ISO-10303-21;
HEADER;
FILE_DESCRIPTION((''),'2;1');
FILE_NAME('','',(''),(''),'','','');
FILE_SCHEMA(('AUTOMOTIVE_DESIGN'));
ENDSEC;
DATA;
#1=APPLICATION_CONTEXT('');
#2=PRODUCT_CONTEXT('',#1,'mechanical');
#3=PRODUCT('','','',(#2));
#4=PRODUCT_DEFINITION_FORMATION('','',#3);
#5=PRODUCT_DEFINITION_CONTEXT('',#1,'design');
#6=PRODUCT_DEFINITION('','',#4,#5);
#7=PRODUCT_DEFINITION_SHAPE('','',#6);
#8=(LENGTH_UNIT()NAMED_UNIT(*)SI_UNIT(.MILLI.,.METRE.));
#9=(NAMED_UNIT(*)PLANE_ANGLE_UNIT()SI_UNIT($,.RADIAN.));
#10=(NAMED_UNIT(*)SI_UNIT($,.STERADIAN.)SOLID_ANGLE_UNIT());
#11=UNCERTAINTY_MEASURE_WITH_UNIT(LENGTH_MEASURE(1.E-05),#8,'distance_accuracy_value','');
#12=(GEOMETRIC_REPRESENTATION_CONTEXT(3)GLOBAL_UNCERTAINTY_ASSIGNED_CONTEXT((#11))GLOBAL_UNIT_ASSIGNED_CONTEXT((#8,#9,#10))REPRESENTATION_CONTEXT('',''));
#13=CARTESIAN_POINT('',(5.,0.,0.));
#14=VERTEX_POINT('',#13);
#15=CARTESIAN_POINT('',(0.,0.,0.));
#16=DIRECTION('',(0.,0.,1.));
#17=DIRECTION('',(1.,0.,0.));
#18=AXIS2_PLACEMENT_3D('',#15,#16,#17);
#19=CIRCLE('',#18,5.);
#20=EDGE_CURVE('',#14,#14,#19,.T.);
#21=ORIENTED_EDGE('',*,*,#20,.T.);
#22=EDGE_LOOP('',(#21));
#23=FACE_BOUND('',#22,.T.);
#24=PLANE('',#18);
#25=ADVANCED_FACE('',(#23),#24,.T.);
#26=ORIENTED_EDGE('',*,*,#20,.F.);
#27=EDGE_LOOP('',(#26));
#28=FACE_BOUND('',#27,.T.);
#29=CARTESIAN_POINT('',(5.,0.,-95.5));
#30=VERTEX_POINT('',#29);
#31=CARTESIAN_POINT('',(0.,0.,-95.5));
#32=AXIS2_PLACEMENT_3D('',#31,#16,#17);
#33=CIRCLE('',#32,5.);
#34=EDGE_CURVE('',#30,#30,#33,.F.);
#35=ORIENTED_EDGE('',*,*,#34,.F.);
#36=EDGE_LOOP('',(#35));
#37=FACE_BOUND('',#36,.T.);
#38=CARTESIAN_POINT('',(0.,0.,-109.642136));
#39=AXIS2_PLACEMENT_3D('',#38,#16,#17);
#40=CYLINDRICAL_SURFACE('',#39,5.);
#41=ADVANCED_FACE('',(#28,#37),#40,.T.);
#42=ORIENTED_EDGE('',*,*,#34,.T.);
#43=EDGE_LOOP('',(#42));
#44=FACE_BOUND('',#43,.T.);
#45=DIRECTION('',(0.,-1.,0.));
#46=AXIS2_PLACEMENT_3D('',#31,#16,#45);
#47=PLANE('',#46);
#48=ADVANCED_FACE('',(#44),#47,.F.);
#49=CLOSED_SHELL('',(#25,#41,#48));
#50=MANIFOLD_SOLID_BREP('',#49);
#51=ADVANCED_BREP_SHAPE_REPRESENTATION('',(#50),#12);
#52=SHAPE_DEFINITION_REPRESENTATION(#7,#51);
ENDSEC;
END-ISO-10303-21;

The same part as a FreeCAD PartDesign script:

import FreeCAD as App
import Part
import Sketcher
from FreeCAD import Vector
Q = App.Units.Quantity

doc = App.newDocument("Part")
params = doc.addObject("Spreadsheet::Sheet", "Params")
for row, (alias, value) in enumerate([
    ("sketch1_diameter", "10 mm"),
    ("pad1_length", "95.5 mm"),
], start=1):
    params.set(f"A{row}", alias)
    params.set(f"B{row}", "=" + value)
    params.setAlias(f"B{row}", alias)

body = doc.addObject("PartDesign::Body", "Body")

sketch1 = body.newObject("Sketcher::SketchObject", "Sketch")
sketch1.AttachmentSupport = (doc.getObject("XY_Plane"), [""])
sketch1.MapMode = "FlatFace"
sketch1.addGeometry(Part.Circle(Vector(0, 0, 0), Vector(0, 0, 1), 5), False)
sketch1.addConstraint([
    Sketcher.Constraint("Coincident", 0, 3, -1, 1),
    Sketcher.Constraint("Diameter", 0, Q("10 mm")),
])
sketch1.setExpression("Constraints[1]", "Params.sketch1_diameter")
pad1 = body.newObject("PartDesign::Pad", "Pad")
pad1.Profile = sketch1
pad1.setExpression("Length", "Params.pad1_length")
pad1.Reversed = True

doc.recompute()
